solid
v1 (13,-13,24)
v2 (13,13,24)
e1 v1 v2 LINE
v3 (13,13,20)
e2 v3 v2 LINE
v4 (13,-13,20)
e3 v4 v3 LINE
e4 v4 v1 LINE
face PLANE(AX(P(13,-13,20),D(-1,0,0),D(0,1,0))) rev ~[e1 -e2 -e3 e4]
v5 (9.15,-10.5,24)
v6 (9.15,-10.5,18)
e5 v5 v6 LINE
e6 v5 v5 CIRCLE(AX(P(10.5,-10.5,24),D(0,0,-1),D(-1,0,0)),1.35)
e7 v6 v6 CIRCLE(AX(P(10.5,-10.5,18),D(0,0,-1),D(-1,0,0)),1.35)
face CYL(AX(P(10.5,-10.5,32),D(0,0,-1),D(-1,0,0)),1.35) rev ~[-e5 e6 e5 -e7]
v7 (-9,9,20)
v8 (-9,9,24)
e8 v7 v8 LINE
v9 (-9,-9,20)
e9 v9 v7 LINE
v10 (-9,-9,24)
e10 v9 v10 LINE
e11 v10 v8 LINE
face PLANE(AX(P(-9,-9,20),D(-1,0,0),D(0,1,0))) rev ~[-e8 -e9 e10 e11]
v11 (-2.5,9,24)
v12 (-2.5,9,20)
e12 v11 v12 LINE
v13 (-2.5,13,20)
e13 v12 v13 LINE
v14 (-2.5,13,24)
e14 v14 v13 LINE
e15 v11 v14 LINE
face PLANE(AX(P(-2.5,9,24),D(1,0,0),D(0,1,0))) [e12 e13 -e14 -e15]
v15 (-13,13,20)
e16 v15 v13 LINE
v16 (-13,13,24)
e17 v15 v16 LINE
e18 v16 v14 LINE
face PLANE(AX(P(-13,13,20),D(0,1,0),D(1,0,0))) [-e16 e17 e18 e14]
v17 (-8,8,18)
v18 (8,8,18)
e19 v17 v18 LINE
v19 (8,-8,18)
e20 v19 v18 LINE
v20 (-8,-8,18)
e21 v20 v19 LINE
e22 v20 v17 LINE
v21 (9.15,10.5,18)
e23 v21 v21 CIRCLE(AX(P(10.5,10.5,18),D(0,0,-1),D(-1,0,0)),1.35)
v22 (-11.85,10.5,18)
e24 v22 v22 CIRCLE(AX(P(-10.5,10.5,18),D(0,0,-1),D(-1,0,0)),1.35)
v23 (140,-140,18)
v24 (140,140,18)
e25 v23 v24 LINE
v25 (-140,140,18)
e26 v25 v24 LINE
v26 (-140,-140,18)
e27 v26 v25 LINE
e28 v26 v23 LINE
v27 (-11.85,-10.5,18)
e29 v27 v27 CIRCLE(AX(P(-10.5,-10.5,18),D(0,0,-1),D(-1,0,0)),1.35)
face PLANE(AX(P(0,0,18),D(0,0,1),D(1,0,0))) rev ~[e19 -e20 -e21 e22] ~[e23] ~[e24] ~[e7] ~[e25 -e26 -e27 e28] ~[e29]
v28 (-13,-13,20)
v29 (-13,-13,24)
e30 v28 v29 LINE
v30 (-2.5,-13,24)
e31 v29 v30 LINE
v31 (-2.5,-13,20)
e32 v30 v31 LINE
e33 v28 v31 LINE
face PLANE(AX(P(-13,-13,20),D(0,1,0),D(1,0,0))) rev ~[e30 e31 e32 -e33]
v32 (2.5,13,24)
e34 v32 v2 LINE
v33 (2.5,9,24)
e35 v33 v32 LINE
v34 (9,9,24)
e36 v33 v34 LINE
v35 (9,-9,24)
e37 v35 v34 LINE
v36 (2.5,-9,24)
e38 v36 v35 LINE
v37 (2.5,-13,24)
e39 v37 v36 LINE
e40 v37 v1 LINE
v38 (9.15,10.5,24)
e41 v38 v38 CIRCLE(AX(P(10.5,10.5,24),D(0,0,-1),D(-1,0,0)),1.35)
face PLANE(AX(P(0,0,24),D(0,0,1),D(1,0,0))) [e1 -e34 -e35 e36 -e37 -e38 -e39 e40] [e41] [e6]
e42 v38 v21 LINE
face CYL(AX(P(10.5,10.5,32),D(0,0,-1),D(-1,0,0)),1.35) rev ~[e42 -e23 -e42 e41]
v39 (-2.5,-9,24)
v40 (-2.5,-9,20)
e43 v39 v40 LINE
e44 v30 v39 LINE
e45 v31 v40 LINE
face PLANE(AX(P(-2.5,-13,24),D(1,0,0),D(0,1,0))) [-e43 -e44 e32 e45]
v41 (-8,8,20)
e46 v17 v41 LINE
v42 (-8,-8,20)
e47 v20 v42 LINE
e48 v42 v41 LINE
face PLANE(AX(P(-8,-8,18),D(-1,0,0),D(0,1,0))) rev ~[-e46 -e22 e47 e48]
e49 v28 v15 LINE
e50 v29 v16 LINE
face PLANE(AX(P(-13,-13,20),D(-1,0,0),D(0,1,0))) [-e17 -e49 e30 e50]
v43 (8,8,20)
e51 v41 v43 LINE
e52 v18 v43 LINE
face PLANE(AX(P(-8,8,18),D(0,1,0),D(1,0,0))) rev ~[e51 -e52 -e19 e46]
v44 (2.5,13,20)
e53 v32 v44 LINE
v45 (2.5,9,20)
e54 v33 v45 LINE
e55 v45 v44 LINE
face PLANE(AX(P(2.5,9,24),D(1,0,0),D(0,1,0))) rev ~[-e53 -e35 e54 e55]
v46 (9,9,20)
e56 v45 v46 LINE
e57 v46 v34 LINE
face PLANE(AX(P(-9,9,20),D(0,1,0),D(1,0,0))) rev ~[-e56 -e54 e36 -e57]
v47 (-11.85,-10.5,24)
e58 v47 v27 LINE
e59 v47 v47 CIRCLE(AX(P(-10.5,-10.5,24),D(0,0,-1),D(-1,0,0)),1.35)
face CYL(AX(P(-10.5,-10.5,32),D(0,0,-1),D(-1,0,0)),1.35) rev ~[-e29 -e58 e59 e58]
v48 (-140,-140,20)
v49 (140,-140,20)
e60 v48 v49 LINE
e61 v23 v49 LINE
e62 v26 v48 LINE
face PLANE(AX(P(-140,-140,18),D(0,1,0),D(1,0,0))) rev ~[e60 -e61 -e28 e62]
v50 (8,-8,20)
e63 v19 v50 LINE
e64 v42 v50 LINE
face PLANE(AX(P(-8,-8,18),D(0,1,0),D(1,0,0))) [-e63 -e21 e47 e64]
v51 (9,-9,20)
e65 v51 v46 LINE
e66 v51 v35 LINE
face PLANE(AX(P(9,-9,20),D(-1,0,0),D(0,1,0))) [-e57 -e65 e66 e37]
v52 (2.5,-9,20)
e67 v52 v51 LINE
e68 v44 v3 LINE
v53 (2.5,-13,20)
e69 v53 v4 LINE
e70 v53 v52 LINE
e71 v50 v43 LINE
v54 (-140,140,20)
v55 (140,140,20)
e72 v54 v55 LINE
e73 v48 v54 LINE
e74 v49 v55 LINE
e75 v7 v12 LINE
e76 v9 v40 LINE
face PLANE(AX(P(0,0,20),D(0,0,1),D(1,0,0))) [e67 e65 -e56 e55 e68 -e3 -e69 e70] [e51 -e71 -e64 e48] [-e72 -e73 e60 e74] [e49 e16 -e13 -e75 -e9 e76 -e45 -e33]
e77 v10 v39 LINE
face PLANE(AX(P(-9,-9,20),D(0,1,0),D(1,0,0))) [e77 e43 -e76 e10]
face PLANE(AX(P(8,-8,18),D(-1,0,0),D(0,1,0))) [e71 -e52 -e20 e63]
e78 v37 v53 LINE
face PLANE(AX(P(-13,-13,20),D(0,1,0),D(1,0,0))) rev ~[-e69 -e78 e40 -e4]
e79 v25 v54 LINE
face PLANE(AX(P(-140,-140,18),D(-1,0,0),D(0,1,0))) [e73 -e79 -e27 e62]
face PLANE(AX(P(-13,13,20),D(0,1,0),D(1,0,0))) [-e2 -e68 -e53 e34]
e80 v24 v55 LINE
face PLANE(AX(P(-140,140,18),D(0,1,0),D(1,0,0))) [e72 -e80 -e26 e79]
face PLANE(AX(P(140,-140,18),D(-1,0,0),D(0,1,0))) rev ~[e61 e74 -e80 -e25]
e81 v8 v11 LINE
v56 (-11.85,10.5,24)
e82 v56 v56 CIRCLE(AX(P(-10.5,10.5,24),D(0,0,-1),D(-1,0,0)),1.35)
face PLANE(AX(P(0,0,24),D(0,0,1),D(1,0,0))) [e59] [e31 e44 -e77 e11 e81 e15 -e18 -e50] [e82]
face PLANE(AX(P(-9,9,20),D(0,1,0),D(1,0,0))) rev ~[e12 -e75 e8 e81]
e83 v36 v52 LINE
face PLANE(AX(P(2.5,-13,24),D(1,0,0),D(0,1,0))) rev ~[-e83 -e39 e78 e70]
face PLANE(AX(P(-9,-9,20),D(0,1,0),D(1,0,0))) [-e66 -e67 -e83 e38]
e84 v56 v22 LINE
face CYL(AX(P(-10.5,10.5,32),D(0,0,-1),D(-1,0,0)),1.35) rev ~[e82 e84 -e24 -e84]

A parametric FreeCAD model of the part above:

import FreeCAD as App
import Part
import Sketcher

doc = App.newDocument("Part")
body = doc.addObject("PartDesign::Body", "Body")

sketch1 = doc.addObject("Sketcher::SketchObject", "Sketch")
body.addObject(sketch1)
sketch1.AttachmentSupport = (doc.XY_Plane, [""])
sketch1.MapMode = "FlatFace"
sketch1.addGeometry(Part.LineSegment(App.Vector(-140, 140, 0), App.Vector(-140, -140, 0)), False)
sketch1.addGeometry(Part.LineSegment(App.Vector(-140, -140, 0), App.Vector(140, -140, 0)), False)
sketch1.addGeometry(Part.LineSegment(App.Vector(140, -140, 0), App.Vector(140, 140, 0)), False)
sketch1.addGeometry(Part.LineSegment(App.Vector(140, 140, 0), App.Vector(-140, 140, 0)), False)
sketch1.addGeometry(Part.LineSegment(App.Vector(25, -25, 0), App.Vector(-25, -25, 0)), False)
sketch1.addGeometry(Part.LineSegment(App.Vector(-25, -25, 0), App.Vector(-25, 25, 0)), False)
sketch1.addGeometry(Part.LineSegment(App.Vector(-25, 25, 0), App.Vector(25, 25, 0)), False)
sketch1.addGeometry(Part.LineSegment(App.Vector(25, 25, 0), App.Vector(25, -25, 0)), False)
sketch1.addConstraint(Sketcher.Constraint("Coincident", 0, 2, 1, 1))
sketch1.addConstraint(Sketcher.Constraint("Coincident", 1, 2, 2, 1))
sketch1.addConstraint(Sketcher.Constraint("Coincident", 2, 2, 3, 1))
sketch1.addConstraint(Sketcher.Constraint("Coincident", 3, 2, 0, 1))
sketch1.addConstraint(Sketcher.Constraint("Coincident", 4, 2, 5, 1))
sketch1.addConstraint(Sketcher.Constraint("Coincident", 5, 2, 6, 1))
sketch1.addConstraint(Sketcher.Constraint("Coincident", 6, 2, 7, 1))
sketch1.addConstraint(Sketcher.Constraint("Coincident", 7, 2, 4, 1))
sketch1.addConstraint(Sketcher.Constraint("Vertical", 0))
sketch1.addConstraint(Sketcher.Constraint("Horizontal", 1))
sketch1.addConstraint(Sketcher.Constraint("Vertical", 2))
sketch1.addConstraint(Sketcher.Constraint("Horizontal", 3))
sketch1.addConstraint(Sketcher.Constraint("Horizontal", 4))
sketch1.addConstraint(Sketcher.Constraint("Vertical", 5))
sketch1.addConstraint(Sketcher.Constraint("Horizontal", 6))
sketch1.addConstraint(Sketcher.Constraint("Vertical", 7))
sketch1.addConstraint(Sketcher.Constraint("Symmetric", 0, 2, 2, 2, -1, 1))
sketch1.addConstraint(Sketcher.Constraint("Symmetric", 4, 2, 6, 2, -1, 1))
sketch1.addConstraint(Sketcher.Constraint("Equal", 3, 0))
sketch1.addConstraint(Sketcher.Constraint("Equal", 6, 5))
sketch1.addConstraint(Sketcher.Constraint("DistanceX", 1, 1, 1, 2, 280.0))
sketch1.addConstraint(Sketcher.Constraint("DistanceX", 4, 2, 4, 1, 50.0))
pad1 = doc.addObject("PartDesign::Pad", "Pad")
body.addObject(pad1)
pad1.Profile = sketch1
pad1.Length = 18

sketch2 = doc.addObject("Sketcher::SketchObject", "Sketch001")
body.addObject(sketch2)
sketch2.AttachmentSupport = (doc.XY_Plane, [""])
sketch2.MapMode = "FlatFace"
sketch2.addGeometry(Part.LineSegment(App.Vector(-140, 140, 0), App.Vector(-140, -140, 0)), False)
sketch2.addGeometry(Part.LineSegment(App.Vector(-140, -140, 0), App.Vector(140, -140, 0)), False)
sketch2.addGeometry(Part.LineSegment(App.Vector(140, -140, 0), App.Vector(140, 140, 0)), False)
sketch2.addGeometry(Part.LineSegment(App.Vector(140, 140, 0), App.Vector(-140, 140, 0)), False)
sketch2.addConstraint(Sketcher.Constraint("Coincident", 0, 2, 1, 1))
sketch2.addConstraint(Sketcher.Constraint("Coincident", 1, 2, 2, 1))
sketch2.addConstraint(Sketcher.Constraint("Coincident", 2, 2, 3, 1))
sketch2.addConstraint(Sketcher.Constraint("Coincident", 3, 2, 0, 1))
sketch2.addConstraint(Sketcher.Constraint("Vertical", 0))
sketch2.addConstraint(Sketcher.Constraint("Horizontal", 1))
sketch2.addConstraint(Sketcher.Constraint("Vertical", 2))
sketch2.addConstraint(Sketcher.Constraint("Horizontal", 3))
sketch2.addConstraint(Sketcher.Constraint("Symmetric", 0, 2, 2, 2, -1, 1))
sketch2.addConstraint(Sketcher.Constraint("Equal", 3, 0))
sketch2.addConstraint(Sketcher.Constraint("DistanceX", 1, 1, 1, 2, 280.0))
pad2 = doc.addObject("PartDesign::Pad", "Pad001")
body.addObject(pad2)
pad2.Profile = sketch2
pad2.Length = 2
pad2.Reversed = True

sketch3 = doc.addObject("Sketcher::SketchObject", "Sketch002")
body.addObject(sketch3)
sketch3.AttachmentSupport = (doc.YZ_Plane, [""])
sketch3.MapMode = "FlatFace"
sketch3.AttachmentOffset = App.Placement(App.Vector(0, 0, 140), App.Rotation())
sketch3.addGeometry(Part.LineSegment(App.Vector(-8, 6, 0), App.Vector(-8, 0, 0)), False)
sketch3.addGeometry(Part.LineSegment(App.Vector(-8, 0, 0), App.Vector(8, 0, 0)), False)
sketch3.addGeometry(Part.LineSegment(App.Vector(8, 0, 0), App.Vector(8, 6, 0)), False)
sketch3.addGeometry(Part.LineSegment(App.Vector(8, 6, 0), App.Vector(-8, 6, 0)), False)
sketch3.addConstraint(Sketcher.Constraint("Coincident", 0, 2, 1, 1))
sketch3.addConstraint(Sketcher.Constraint("Coincident", 1, 2, 2, 1))
sketch3.addConstraint(Sketcher.Constraint("Coincident", 2, 2, 3, 1))
sketch3.addConstraint(Sketcher.Constraint("Coincident", 3, 2, 0, 1))
sketch3.addConstraint(Sketcher.Constraint("Vertical", 0))
sketch3.addConstraint(Sketcher.Constraint("Horizontal", 1))
sketch3.addConstraint(Sketcher.Constraint("Vertical", 2))
sketch3.addConstraint(Sketcher.Constraint("Horizontal", 3))
sketch3.addConstraint(Sketcher.Constraint("PointOnObject", 0, 2, -1))
sketch3.addConstraint(Sketcher.Constraint("DistanceX", 1, 1, 1, 2, 16.0))
sketch3.addConstraint(Sketcher.Constraint("DistanceY", 0, 2, 0, 1, 6.0))
sketch3.addConstraint(Sketcher.Constraint("DistanceX", 0, 2, -1, 1, 7.979804))
pocket1 = doc.addObject("PartDesign::Pocket", "Pocket")
body.addObject(pocket1)
pocket1.Profile = sketch3
pocket1.Length = 115
body2 = doc.addObject("PartDesign::Body", "Body001")

sketch4 = doc.addObject("Sketcher::SketchObject", "Sketch003")
body2.addObject(sketch4)
sketch4.AttachmentSupport = (doc.getObject("XY_Plane001"), [""])
sketch4.MapMode = "FlatFace"
sketch4.AttachmentOffset = App.Placement(App.Vector(0, 0, 18), App.Rotation())
sketch4.addGeometry(Part.LineSegment(App.Vector(-140, 140, 0), App.Vector(-140, -140, 0)), False)
sketch4.addGeometry(Part.LineSegment(App.Vector(-140, -140, 0), App.Vector(140, -140, 0)), False)
sketch4.addGeometry(Part.LineSegment(App.Vector(140, -140, 0), App.Vector(140, 140, 0)), False)
sketch4.addGeometry(Part.LineSegment(App.Vector(140, 140, 0), App.Vector(-140, 140, 0)), False)
sketch4.addGeometry(Part.LineSegment(App.Vector(8, -8, 0), App.Vector(-8, -8, 0)), False)
sketch4.addGeometry(Part.LineSegment(App.Vector(-8, -8, 0), App.Vector(-8, 8, 0)), False)
sketch4.addGeometry(Part.LineSegment(App.Vector(-8, 8, 0), App.Vector(8, 8, 0)), False)
sketch4.addGeometry(Part.LineSegment(App.Vector(8, 8, 0), App.Vector(8, -8, 0)), False)
sketch4.addConstraint(Sketcher.Constraint("Coincident", 0, 2, 1, 1))
sketch4.addConstraint(Sketcher.Constraint("Coincident", 1, 2, 2, 1))
sketch4.addConstraint(Sketcher.Constraint("Coincident", 2, 2, 3, 1))
sketch4.addConstraint(Sketcher.Constraint("Coincident", 3, 2, 0, 1))
sketch4.addConstraint(Sketcher.Constraint("Coincident", 4, 2, 5, 1))
sketch4.addConstraint(Sketcher.Constraint("Coincident", 5, 2, 6, 1))
sketch4.addConstraint(Sketcher.Constraint("Coincident", 6, 2, 7, 1))
sketch4.addConstraint(Sketcher.Constraint("Coincident", 7, 2, 4, 1))
sketch4.addConstraint(Sketcher.Constraint("Vertical", 0))
sketch4.addConstraint(Sketcher.Constraint("Horizontal", 1))
sketch4.addConstraint(Sketcher.Constraint("Vertical", 2))
sketch4.addConstraint(Sketcher.Constraint("Horizontal", 3))
sketch4.addConstraint(Sketcher.Constraint("Horizontal", 4))
sketch4.addConstraint(Sketcher.Constraint("Vertical", 5))
sketch4.addConstraint(Sketcher.Constraint("Horizontal", 6))
sketch4.addConstraint(Sketcher.Constraint("Vertical", 7))
sketch4.addConstraint(Sketcher.Constraint("Symmetric", 0, 2, 2, 2, -1, 1))
sketch4.addConstraint(Sketcher.Constraint("Symmetric", 4, 2, 6, 2, -1, 1))
sketch4.addConstraint(Sketcher.Constraint("Equal", 3, 0))
sketch4.addConstraint(Sketcher.Constraint("Equal", 6, 5))
sketch4.addConstraint(Sketcher.Constraint("DistanceX", 1, 1, 1, 2, 280.0))
sketch4.addConstraint(Sketcher.Constraint("DistanceX", 4, 2, 4, 1, 16.0))
pad3 = doc.addObject("PartDesign::Pad", "Pad002")
body2.addObject(pad3)
pad3.Profile = sketch4
pad3.Length = 2

sketch5 = doc.addObject("Sketcher::SketchObject", "Sketch004")
body2.addObject(sketch5)
sketch5.AttachmentSupport = (doc.getObject("XY_Plane001"), [""])
sketch5.MapMode = "FlatFace"
sketch5.AttachmentOffset = App.Placement(App.Vector(0, 0, 20), App.Rotation())
sketch5.addGeometry(Part.LineSegment(App.Vector(-13, 13, 0), App.Vector(-13, -13, 0)), False)
sketch5.addGeometry(Part.LineSegment(App.Vector(-13, -13, 0), App.Vector(13, -13, 0)), False)
sketch5.addGeometry(Part.LineSegment(App.Vector(13, -13, 0), App.Vector(13, 13, 0)), False)
sketch5.addGeometry(Part.LineSegment(App.Vector(13, 13, 0), App.Vector(-13, 13, 0)), False)
sketch5.addGeometry(Part.LineSegment(App.Vector(9, -9, 0), App.Vector(-9, -9, 0)), False)
sketch5.addGeometry(Part.LineSegment(App.Vector(-9, -9, 0), App.Vector(-9, 9, 0)), False)
sketch5.addGeometry(Part.LineSegment(App.Vector(-9, 9, 0), App.Vector(9, 9, 0)), False)
sketch5.addGeometry(Part.LineSegment(App.Vector(9, 9, 0), App.Vector(9, -9, 0)), False)
sketch5.addConstraint(Sketcher.Constraint("Coincident", 0, 2, 1, 1))
sketch5.addConstraint(Sketcher.Constraint("Coincident", 1, 2, 2, 1))
sketch5.addConstraint(Sketcher.Constraint("Coincident", 2, 2, 3, 1))
sketch5.addConstraint(Sketcher.Constraint("Coincident", 3, 2, 0, 1))
sketch5.addConstraint(Sketcher.Constraint("Coincident", 4, 2, 5, 1))
sketch5.addConstraint(Sketcher.Constraint("Coincident", 5, 2, 6, 1))
sketch5.addConstraint(Sketcher.Constraint("Coincident", 6, 2, 7, 1))
sketch5.addConstraint(Sketcher.Constraint("Coincident", 7, 2, 4, 1))
sketch5.addConstraint(Sketcher.Constraint("Vertical", 0))
sketch5.addConstraint(Sketcher.Constraint("Horizontal", 1))
sketch5.addConstraint(Sketcher.Constraint("Vertical", 2))
sketch5.addConstraint(Sketcher.Constraint("Horizontal", 3))
sketch5.addConstraint(Sketcher.Constraint("Horizontal", 4))
sketch5.addConstraint(Sketcher.Constraint("Vertical", 5))
sketch5.addConstraint(Sketcher.Constraint("Horizontal", 6))
sketch5.addConstraint(Sketcher.Constraint("Vertical", 7))
sketch5.addConstraint(Sketcher.Constraint("Symmetric", 0, 2, 2, 2, -1, 1))
sketch5.addConstraint(Sketcher.Constraint("Symmetric", 4, 2, 6, 2, -1, 1))
sketch5.addConstraint(Sketcher.Constraint("Equal", 3, 0))
sketch5.addConstraint(Sketcher.Constraint("Equal", 6, 5))
sketch5.addConstraint(Sketcher.Constraint("DistanceX", 1, 1, 1, 2, 26.0))
sketch5.addConstraint(Sketcher.Constraint("DistanceX", 4, 2, 4, 1, 18.0))
pad4 = doc.addObject("PartDesign::Pad", "Pad003")
body2.addObject(pad4)
pad4.Profile = sketch5
pad4.Length = 4

sketch6 = doc.addObject("Sketcher::SketchObject", "Sketch005")
body2.addObject(sketch6)
sketch6.AttachmentSupport = (doc.getObject("XY_Plane001"), [""])
sketch6.MapMode = "FlatFace"
sketch6.AttachmentOffset = App.Placement(App.Vector(0, 0, 24), App.Rotation())
sketch6.addGeometry(Part.Circle(App.Vector(-10.5, 10.5, 0), App.Vector(0, 0, 1), 1.4), False)
sketch6.addGeometry(Part.Circle(App.Vector(10.5, 10.5, 0), App.Vector(0, 0, 1), 1.4), False)
sketch6.addGeometry(Part.Circle(App.Vector(-10.5, -10.5, 0), App.Vector(0, 0, 1), 1.4), False)
sketch6.addGeometry(Part.Circle(App.Vector(10.5, -10.5, 0), App.Vector(0, 0, 1), 1.4), False)
sketch6.addConstraint(Sketcher.Constraint("Equal", 0, 1))
sketch6.addConstraint(Sketcher.Constraint("Equal", 1, 2))
sketch6.addConstraint(Sketcher.Constraint("Equal", 2, 3))
sketch6.addConstraint(Sketcher.Constraint("Symmetric", 1, 3, 2, 3, -1, 1))
sketch6.addConstraint(Sketcher.Constraint("Symmetric", 0, 3, 3, 3, -1, 1))
sketch6.addConstraint(Sketcher.Constraint("Symmetric", 0, 3, 1, 3, -2))
sketch6.addConstraint(Sketcher.Constraint("Diameter", 0, 2.7))
sketch6.addConstraint(Sketcher.Constraint("DistanceX", 0, 3, 1, 3, 21.0))
sketch6.addConstraint(Sketcher.Constraint("DistanceY", 2, 3, 0, 3, 21.0))
doc.recompute()
hole = doc.addObject("PartDesign::Hole", "Hole")
body2.addObject(hole)
hole.Profile = sketch6
hole.ThreadType = "None"
hole.Diameter = 2.7
hole.DepthType = "Dimension"
hole.Depth = 8
hole.DrillPoint = "Angled"
hole.DrillPointAngle = 118

sketch7 = doc.addObject("Sketcher::SketchObject", "Sketch006")
body2.addObject(sketch7)
sketch7.AttachmentSupport = (doc.getObject("XY_Plane001"), [""])
sketch7.MapMode = "FlatFace"
sketch7.AttachmentOffset = App.Placement(App.Vector(0, 0, 24), App.Rotation())
sketch7.addGeometry(Part.LineSegment(App.Vector(-2.5, 13, 0), App.Vector(-2.5, 9, 0)), False)
sketch7.addGeometry(Part.LineSegment(App.Vector(-2.5, 9, 0), App.Vector(2.5, 9, 0)), False)
sketch7.addGeometry(Part.LineSegment(App.Vector(2.5, 9, 0), App.Vector(2.5, 13, 0)), False)
sketch7.addGeometry(Part.LineSegment(App.Vector(2.5, 13, 0), App.Vector(-2.5, 13, 0)), False)
sketch7.addGeometry(Part.LineSegment(App.Vector(-2.5, -9, 0), App.Vector(-2.5, -13, 0)), False)
sketch7.addGeometry(Part.LineSegment(App.Vector(-2.5, -13, 0), App.Vector(2.5, -13, 0)), False)
sketch7.addGeometry(Part.LineSegment(App.Vector(2.5, -13, 0), App.Vector(2.5, -9, 0)), False)
sketch7.addGeometry(Part.LineSegment(App.Vector(2.5, -9, 0), App.Vector(-2.5, -9, 0)), False)
sketch7.addConstraint(Sketcher.Constraint("Coincident", 0, 2, 1, 1))
sketch7.addConstraint(Sketcher.Constraint("Coincident", 1, 2, 2, 1))
sketch7.addConstraint(Sketcher.Constraint("Coincident", 2, 2, 3, 1))
sketch7.addConstraint(Sketcher.Constraint("Coincident", 3, 2, 0, 1))
sketch7.addConstraint(Sketcher.Constraint("Coincident", 4, 2, 5, 1))
sketch7.addConstraint(Sketcher.Constraint("Coincident", 5, 2, 6, 1))
sketch7.addConstraint(Sketcher.Constraint("Coincident", 6, 2, 7, 1))
sketch7.addConstraint(Sketcher.Constraint("Coincident", 7, 2, 4, 1))
sketch7.addConstraint(Sketcher.Constraint("Vertical", 0))
sketch7.addConstraint(Sketcher.Constraint("Horizontal", 1))
sketch7.addConstraint(Sketcher.Constraint("Vertical", 2))
sketch7.addConstraint(Sketcher.Constraint("Horizontal", 3))
sketch7.addConstraint(Sketcher.Constraint("Vertical", 4))
sketch7.addConstraint(Sketcher.Constraint("Horizontal", 5))
sketch7.addConstraint(Sketcher.Constraint("Vertical", 6))
sketch7.addConstraint(Sketcher.Constraint("Horizontal", 7))
sketch7.addConstraint(Sketcher.Constraint("Symmetric", 2, 2, 4, 2, -1, 1))
sketch7.addConstraint(Sketcher.Constraint("Symmetric", 0, 2, 6, 2, -1, 1))
sketch7.addConstraint(Sketcher.Constraint("Vertical", 3, 2, 4, 2))
sketch7.addConstraint(Sketcher.Constraint("DistanceX", 1, 1, 1, 2, 5.0))
sketch7.addConstraint(Sketcher.Constraint("DistanceY", 0, 2, 0, 1, 4.0))
sketch7.addConstraint(Sketcher.Constraint("DistanceY", -1, 1, 0, 2, 9.0))
pocket2 = doc.addObject("PartDesign::Pocket", "Pocket001")
body2.addObject(pocket2)
pocket2.Profile = sketch7
pocket2.Length = 4
body.Visibility = False

doc.recompute()
